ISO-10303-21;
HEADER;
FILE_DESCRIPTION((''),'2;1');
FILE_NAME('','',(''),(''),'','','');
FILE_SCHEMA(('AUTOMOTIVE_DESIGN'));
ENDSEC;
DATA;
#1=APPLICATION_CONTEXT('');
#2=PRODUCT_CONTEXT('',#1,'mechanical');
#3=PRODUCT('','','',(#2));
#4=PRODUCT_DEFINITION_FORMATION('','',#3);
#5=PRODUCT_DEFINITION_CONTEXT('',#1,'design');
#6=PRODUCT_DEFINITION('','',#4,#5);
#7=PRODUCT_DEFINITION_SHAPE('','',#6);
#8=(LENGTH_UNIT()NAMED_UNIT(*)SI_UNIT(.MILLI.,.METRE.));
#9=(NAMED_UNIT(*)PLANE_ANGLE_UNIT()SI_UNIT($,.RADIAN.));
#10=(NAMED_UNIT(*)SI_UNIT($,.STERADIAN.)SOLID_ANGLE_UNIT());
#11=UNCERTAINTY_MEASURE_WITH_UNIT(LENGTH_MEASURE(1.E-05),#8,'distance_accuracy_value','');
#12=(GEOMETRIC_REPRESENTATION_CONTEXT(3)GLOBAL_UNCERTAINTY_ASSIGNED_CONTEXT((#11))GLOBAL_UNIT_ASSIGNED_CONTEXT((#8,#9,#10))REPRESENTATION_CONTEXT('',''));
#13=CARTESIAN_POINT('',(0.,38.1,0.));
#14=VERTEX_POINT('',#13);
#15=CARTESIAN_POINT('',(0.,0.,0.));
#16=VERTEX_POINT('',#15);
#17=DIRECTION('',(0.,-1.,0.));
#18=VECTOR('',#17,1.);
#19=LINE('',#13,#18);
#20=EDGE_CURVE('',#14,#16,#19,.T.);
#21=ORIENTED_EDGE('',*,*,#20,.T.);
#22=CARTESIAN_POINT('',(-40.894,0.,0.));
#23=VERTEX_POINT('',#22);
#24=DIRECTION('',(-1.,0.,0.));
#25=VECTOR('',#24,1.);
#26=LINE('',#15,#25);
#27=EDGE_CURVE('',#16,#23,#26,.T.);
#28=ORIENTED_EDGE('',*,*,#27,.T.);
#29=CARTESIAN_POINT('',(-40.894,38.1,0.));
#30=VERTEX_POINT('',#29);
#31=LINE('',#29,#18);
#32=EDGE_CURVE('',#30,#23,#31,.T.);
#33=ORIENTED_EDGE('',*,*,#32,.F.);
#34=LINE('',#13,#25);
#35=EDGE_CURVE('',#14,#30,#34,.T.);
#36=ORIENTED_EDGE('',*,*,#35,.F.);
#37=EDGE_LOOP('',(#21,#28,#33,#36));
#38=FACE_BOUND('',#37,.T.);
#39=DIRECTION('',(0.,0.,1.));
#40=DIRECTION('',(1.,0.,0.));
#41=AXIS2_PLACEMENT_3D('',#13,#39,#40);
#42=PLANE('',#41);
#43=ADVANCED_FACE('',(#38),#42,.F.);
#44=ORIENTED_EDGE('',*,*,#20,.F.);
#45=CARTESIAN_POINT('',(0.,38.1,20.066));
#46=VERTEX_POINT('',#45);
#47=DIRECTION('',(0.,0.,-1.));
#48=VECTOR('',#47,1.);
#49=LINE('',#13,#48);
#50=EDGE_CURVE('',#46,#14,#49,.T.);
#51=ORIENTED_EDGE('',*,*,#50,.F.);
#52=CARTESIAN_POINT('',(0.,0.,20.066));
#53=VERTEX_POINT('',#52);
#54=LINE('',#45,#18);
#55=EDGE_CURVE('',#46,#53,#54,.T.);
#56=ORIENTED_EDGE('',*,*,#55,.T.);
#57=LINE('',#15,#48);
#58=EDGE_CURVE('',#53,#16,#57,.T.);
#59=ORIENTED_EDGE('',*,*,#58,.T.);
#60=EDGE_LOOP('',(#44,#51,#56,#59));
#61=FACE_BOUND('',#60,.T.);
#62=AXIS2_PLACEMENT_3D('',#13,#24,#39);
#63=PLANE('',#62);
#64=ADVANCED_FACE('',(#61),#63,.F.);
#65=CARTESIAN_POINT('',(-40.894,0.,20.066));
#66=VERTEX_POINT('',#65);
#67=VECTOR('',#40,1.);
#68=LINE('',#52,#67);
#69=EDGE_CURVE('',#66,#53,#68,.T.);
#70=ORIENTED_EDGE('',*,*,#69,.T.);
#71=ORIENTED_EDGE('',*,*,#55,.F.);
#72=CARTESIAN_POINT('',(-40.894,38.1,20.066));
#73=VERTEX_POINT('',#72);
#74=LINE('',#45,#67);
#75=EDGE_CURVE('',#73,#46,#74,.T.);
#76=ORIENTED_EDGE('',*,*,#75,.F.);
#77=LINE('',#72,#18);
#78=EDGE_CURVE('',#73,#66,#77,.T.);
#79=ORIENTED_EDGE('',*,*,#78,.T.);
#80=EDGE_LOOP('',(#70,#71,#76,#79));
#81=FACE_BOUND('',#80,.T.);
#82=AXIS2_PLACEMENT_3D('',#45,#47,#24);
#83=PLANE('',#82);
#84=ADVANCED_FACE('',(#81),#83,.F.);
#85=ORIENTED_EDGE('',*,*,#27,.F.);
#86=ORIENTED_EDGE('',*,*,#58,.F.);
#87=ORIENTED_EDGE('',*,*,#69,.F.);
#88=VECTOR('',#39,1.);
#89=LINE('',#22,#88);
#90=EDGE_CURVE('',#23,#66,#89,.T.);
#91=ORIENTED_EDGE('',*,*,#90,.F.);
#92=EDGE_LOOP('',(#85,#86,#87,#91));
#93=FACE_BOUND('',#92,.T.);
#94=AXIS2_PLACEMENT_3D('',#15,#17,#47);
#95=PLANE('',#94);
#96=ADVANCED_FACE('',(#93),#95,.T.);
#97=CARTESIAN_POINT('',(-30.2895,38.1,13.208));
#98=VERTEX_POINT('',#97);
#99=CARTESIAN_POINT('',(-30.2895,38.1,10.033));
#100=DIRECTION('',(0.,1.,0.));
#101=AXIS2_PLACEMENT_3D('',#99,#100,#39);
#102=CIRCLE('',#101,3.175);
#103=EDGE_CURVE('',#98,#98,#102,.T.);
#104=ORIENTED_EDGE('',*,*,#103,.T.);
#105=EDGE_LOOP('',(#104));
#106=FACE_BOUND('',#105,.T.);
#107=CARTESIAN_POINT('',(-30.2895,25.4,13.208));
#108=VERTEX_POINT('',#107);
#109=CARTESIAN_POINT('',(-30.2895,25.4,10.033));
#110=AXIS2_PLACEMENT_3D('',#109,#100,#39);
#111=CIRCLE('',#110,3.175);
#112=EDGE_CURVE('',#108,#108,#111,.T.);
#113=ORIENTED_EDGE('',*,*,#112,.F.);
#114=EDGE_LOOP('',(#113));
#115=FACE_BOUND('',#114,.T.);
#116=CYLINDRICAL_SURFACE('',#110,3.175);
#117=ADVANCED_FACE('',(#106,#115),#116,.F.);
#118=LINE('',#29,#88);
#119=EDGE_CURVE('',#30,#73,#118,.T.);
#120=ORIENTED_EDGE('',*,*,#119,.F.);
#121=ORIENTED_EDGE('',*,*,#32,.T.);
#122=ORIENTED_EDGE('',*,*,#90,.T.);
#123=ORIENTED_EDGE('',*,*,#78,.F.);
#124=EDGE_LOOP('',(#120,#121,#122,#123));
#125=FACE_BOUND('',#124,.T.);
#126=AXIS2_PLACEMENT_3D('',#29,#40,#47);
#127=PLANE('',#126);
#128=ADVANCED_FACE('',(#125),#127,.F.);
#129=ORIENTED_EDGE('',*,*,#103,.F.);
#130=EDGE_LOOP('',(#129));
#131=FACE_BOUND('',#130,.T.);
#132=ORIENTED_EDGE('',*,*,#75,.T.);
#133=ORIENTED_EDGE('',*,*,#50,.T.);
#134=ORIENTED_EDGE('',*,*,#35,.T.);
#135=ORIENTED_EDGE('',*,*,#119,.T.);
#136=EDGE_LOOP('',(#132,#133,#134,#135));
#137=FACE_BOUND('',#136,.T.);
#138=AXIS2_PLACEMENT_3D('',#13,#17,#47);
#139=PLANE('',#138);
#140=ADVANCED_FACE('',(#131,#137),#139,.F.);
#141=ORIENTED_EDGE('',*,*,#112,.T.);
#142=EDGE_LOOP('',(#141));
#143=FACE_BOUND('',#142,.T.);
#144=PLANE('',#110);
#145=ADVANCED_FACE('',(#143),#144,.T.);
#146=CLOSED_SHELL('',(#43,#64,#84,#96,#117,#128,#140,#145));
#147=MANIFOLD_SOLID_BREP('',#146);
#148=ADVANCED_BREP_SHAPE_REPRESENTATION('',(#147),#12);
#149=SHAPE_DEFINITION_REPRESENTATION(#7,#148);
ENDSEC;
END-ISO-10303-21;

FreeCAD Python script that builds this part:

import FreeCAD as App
import Part
import Sketcher
from FreeCAD import Vector
Q = App.Units.Quantity


def add_polygon(sketch, points):
    """Adds a closed chain of lines whose ends are joined by coincident constraints."""
    first, n = sketch.GeometryCount, len(points)
    for a, b in zip(points, points[1:] + points[:1]):
        sketch.addGeometry(Part.LineSegment(App.Vector(*a, 0), App.Vector(*b, 0)), False)
    for i in range(n):
        sketch.addConstraint(Sketcher.Constraint("Coincident", first + i, 2, first + (i + 1) % n, 1))

doc = App.newDocument("Part")
params = doc.addObject("Spreadsheet::Sheet", "Params")
for row, (alias, value) in enumerate([
    ("sketch1_width", "1.61 in"),
    ("sketch1_height", "0.79 in"),
    ("pad1_length", "1.5 in"),
    ("sketch2_diameter", "0.25 in"),
    ("pocket1_length", "0.5 in"),
], start=1):
    params.set(f"A{row}", alias)
    params.set(f"B{row}", "=" + value)
    params.setAlias(f"B{row}", alias)

body = doc.addObject("PartDesign::Body", "Body")

sketch1 = doc.addObject("Sketcher::SketchObject", "Sketch")
body.addObject(sketch1)
sketch1.AttachmentSupport = (doc.XZ_Plane, [""])
sketch1.MapMode = "FlatFace"
add_polygon(sketch1, [(-40.894, 0), (-40.894, 20.066), (0, 20.066), (0, 0)])
sketch1.addConstraint(Sketcher.Constraint("Vertical", 0))
sketch1.addConstraint(Sketcher.Constraint("Horizontal", 1))
sketch1.addConstraint(Sketcher.Constraint("Vertical", 2))
sketch1.addConstraint(Sketcher.Constraint("Horizontal", 3))
sketch1.addConstraint(Sketcher.Constraint("Coincident", 2, 2, -1, 1))
sketch1.addConstraint(Sketcher.Constraint("DistanceX", 1, 1, 1, 2, Q("1.61 in")))
sketch1.addConstraint(Sketcher.Constraint("DistanceY", 0, 1, 0, 2, Q("0.79 in")))
sketch1.setExpression("Constraints[9]", "Params.sketch1_width")
sketch1.setExpression("Constraints[10]", "Params.sketch1_height")
pad1 = doc.addObject("PartDesign::Pad", "Pad")
body.addObject(pad1)
pad1.Profile = sketch1
pad1.setExpression("Length", "Params.pad1_length")
pad1.Reversed = True

sketch2 = doc.addObject("Sketcher::SketchObject", "Sketch001")
body.addObject(sketch2)
sketch2.AttachmentSupport = (doc.XZ_Plane, [""])
sketch2.MapMode = "FlatFace"
sketch2.AttachmentOffset = App.Placement(Vector(0, 0, -1.5 * 25.4), App.Rotation())
sketch2.addGeometry(Part.Circle(Vector(-30.2895, 10.033, 0), Vector(0, 0, 1), 3.175), False)
sketch2.addConstraint(Sketcher.Constraint("Diameter", 0, Q("0.25 in")))
sketch2.addConstraint(Sketcher.Constraint("DistanceY", -1, 1, 0, 3, Q("0.395 in")))
sketch2.addConstraint(Sketcher.Constraint("DistanceX", 0, 3, -1, 1, Q("1.1925 in")))
sketch2.setExpression("Constraints[0]", "Params.sketch2_diameter")
pocket1 = doc.addObject("PartDesign::Pocket", "Pocket")
body.addObject(pocket1)
pocket1.Profile = sketch2
pocket1.setExpression("Length", "Params.pocket1_length")
pocket1.Reversed = True

doc.recompute()
